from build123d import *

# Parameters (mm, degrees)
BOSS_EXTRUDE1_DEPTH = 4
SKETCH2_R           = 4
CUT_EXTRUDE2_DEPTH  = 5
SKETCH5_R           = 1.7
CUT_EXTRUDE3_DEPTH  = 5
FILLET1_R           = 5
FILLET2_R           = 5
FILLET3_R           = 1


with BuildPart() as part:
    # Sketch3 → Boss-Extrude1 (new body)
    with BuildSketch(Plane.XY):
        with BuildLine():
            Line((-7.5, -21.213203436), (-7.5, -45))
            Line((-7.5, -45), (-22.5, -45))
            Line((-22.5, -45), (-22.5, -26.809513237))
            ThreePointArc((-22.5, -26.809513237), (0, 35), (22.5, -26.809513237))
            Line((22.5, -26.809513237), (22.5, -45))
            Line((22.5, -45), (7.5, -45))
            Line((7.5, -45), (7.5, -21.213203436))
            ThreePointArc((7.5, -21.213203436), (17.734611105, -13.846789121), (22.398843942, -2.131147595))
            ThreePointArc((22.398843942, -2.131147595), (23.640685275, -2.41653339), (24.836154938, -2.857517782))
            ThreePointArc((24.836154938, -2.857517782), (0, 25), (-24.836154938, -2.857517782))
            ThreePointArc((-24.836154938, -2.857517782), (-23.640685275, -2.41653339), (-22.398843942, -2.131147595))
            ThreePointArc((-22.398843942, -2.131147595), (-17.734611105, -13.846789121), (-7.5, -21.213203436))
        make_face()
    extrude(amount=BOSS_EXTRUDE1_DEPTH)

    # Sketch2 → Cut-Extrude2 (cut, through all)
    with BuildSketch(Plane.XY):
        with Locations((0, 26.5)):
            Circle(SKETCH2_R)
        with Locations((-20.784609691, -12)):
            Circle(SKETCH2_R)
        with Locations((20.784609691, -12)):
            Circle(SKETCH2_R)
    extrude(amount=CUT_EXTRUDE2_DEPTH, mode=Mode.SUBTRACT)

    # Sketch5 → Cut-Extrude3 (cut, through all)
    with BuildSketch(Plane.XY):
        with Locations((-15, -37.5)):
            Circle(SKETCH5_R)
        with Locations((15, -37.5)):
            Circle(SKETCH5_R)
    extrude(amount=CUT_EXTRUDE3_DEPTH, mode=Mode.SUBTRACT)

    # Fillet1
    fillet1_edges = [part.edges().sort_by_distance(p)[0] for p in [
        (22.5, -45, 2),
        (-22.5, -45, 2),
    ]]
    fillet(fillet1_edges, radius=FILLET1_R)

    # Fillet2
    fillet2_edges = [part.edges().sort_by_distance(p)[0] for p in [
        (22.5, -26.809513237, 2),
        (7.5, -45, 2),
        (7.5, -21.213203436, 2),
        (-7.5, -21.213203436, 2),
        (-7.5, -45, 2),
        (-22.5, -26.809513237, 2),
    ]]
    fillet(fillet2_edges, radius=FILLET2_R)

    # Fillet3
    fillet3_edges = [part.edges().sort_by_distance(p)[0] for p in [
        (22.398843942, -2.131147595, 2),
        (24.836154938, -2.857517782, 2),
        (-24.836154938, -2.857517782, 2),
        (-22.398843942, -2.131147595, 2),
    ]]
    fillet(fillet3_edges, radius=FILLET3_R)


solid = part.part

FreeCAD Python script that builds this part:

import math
import FreeCAD as App
import Part
import Sketcher
from FreeCAD import Vector


def edges_at(feature, points):
    """Names of the edges that pass closest to the given points."""
    edges = feature.Shape.Edges
    near = lambda p: min(range(len(edges)), key=lambda i: edges[i].distToShape(Part.Vertex(*p))[0])
    return sorted({f"Edge{near(p) + 1}" for p in points})

doc = App.newDocument("Part")
params = doc.addObject("Spreadsheet::Sheet", "Params")
for row, (alias, value) in enumerate([
    ("sketch1_radius", "10 mm"),
    ("sketch1_radius2", "25 mm"),
    ("sketch1_radius3", "35 mm"),
    ("sketch1_radius4", "22.5 mm"),
    ("sketch1_width", "15 mm"),
    ("pad1_length", "4 mm"),
    ("sketch2_diameter", "8 mm"),
    ("sketch3_diameter", "3.4 mm"),
    ("fillet_radius", "5 mm"),
    ("fillet2_radius", "5 mm"),
    ("fillet3_radius", "1 mm"),
], start=1):
    params.set(f"A{row}", alias)
    params.set(f"B{row}", "=" + value)
    params.setAlias(f"B{row}", alias)

body = doc.addObject("PartDesign::Body", "Body")

# Sketch on XY plane
sketch1 = body.newObject("Sketcher::SketchObject", "Sketch")
sketch1.AttachmentSupport = (doc.getObject("XY_Plane"), [""])
sketch1.MapMode = "FlatFace"
sketch1.addGeometry(Part.LineSegment(Vector(-7.5, -45, 0), Vector(-7.5, -21.2, 0)), False)
sketch1.addGeometry(Part.ArcOfCircle(Part.Circle(Vector(0, 0, 0), Vector(0, 0, 1), 22.5), math.radians(-175), math.radians(-109)), False)
sketch1.addGeometry(Part.ArcOfCircle(Part.Circle(Vector(-20.8, -12, 0), Vector(0, 0, 1), 10), math.radians(99.29), math.radians(113.9)), False)
sketch1.addGeometry(Part.ArcOfCircle(Part.Circle(Vector(0, 0, 0), Vector(0, 0, 1), 25), math.radians(-7), math.radians(187)), False)
sketch1.addGeometry(Part.ArcOfCircle(Part.Circle(Vector(20.8, -12, 0), Vector(0, 0, 1), 10), math.radians(66.1), math.radians(80.71)), False)
sketch1.addGeometry(Part.ArcOfCircle(Part.Circle(Vector(0, 0, 0), Vector(0, 0, 1), 22.5), math.radians(-71), math.radians(-5)), False)
sketch1.addGeometry(Part.LineSegment(Vector(7.5, -21.2, 0), Vector(7.5, -45, 0)), False)
sketch1.addGeometry(Part.LineSegment(Vector(7.5, -45, 0), Vector(22.5, -45, 0)), False)
sketch1.addGeometry(Part.LineSegment(Vector(22.5, -45, 0), Vector(22.5, -26.8, 0)), False)
sketch1.addGeometry(Part.ArcOfCircle(Part.Circle(Vector(0, 0, 0), Vector(0, 0, 1), 35), math.radians(-50), math.radians(230)), False)
sketch1.addGeometry(Part.LineSegment(Vector(-22.5, -26.8, 0), Vector(-22.5, -45, 0)), False)
sketch1.addGeometry(Part.LineSegment(Vector(-22.5, -45, 0), Vector(-7.5, -45, 0)), False)
sketch1.addConstraint(Sketcher.Constraint("Coincident", 0, 2, 1, 2))
sketch1.addConstraint(Sketcher.Constraint("Coincident", 1, 1, 2, 1))
sketch1.addConstraint(Sketcher.Constraint("Coincident", 2, 2, 3, 2))
sketch1.addConstraint(Sketcher.Constraint("Coincident", 3, 1, 4, 1))
sketch1.addConstraint(Sketcher.Constraint("Coincident", 4, 2, 5, 2))
sketch1.addConstraint(Sketcher.Constraint("Coincident", 5, 1, 6, 1))
sketch1.addConstraint(Sketcher.Constraint("Coincident", 6, 2, 7, 1))
sketch1.addConstraint(Sketcher.Constraint("Coincident", 7, 2, 8, 1))
sketch1.addConstraint(Sketcher.Constraint("Coincident", 8, 2, 9, 1))
sketch1.addConstraint(Sketcher.Constraint("Coincident", 9, 2, 10, 1))
sketch1.addConstraint(Sketcher.Constraint("Coincident", 10, 2, 11, 1))
sketch1.addConstraint(Sketcher.Constraint("Coincident", 11, 2, 0, 1))
sketch1.addConstraint(Sketcher.Constraint("Vertical", 0))
sketch1.addConstraint(Sketcher.Constraint("Vertical", 6))
sketch1.addConstraint(Sketcher.Constraint("Horizontal", 7))
sketch1.addConstraint(Sketcher.Constraint("Vertical", 8))
sketch1.addConstraint(Sketcher.Constraint("Vertical", 10))
sketch1.addConstraint(Sketcher.Constraint("Horizontal", 11))
sketch1.addConstraint(Sketcher.Constraint("Coincident", 1, 3, -1, 1))
sketch1.addConstraint(Sketcher.Constraint("Coincident", 3, 3, -1, 1))
sketch1.addConstraint(Sketcher.Constraint("Coincident", 5, 3, -1, 1))
sketch1.addConstraint(Sketcher.Constraint("Coincident", 9, 3, -1, 1))
sketch1.addConstraint(Sketcher.Constraint("Equal", 2, 4))
sketch1.addConstraint(Sketcher.Constraint("Equal", 1, 5))
sketch1.addConstraint(Sketcher.Constraint("Symmetric", 2, 3, 4, 3, -2))
sketch1.addConstraint(Sketcher.Constraint("Symmetric", 7, 2, 10, 2, -2))
sketch1.addConstraint(Sketcher.Constraint("Horizontal", 0, 2, 5, 1))
sketch1.addConstraint(Sketcher.Constraint("Radius", 2, 10.0))
sketch1.addConstraint(Sketcher.Constraint("Radius", 3, 25.0))
sketch1.addConstraint(Sketcher.Constraint("Radius", 9, 35.0))
sketch1.addConstraint(Sketcher.Constraint("Radius", 1, 22.5))
sketch1.addConstraint(Sketcher.Constraint("DistanceX", 7, 1, 7, 2, 15.0))
sketch1.addConstraint(Sketcher.Constraint("DistanceY", 2, 3, -1, 1, 12.0))
sketch1.addConstraint(Sketcher.Constraint("DistanceY", 6, 2, -1, 1, 45.0))
sketch1.addConstraint(Sketcher.Constraint("DistanceX", 0, 2, 5, 1, 15.0))
sketch1.addConstraint(Sketcher.Constraint("DistanceX", 2, 3, -1, 1, 20.78461))
sketch1.setExpression("Constraints[27]", "Params.sketch1_radius")
sketch1.setExpression("Constraints[28]", "Params.sketch1_radius2")
sketch1.setExpression("Constraints[29]", "Params.sketch1_radius3")
sketch1.setExpression("Constraints[30]", "Params.sketch1_radius4")
sketch1.setExpression("Constraints[31]", "Params.sketch1_width")
pad1 = body.newObject("PartDesign::Pad", "Pad")
pad1.Profile = sketch1
pad1.setExpression("Length", "Params.pad1_length")

# Sketch on XY plane
sketch2 = body.newObject("Sketcher::SketchObject", "Sketch001")
sketch2.AttachmentSupport = (doc.getObject("XY_Plane"), [""])
sketch2.MapMode = "FlatFace"
sketch2.addGeometry(Part.Circle(Vector(0, 26.5, 0), Vector(0, 0, 1), 4), False)
sketch2.addGeometry(Part.Circle(Vector(-20.8, -12, 0), Vector(0, 0, 1), 4), False)
sketch2.addGeometry(Part.Circle(Vector(20.8, -12, 0), Vector(0, 0, 1), 4), False)
sketch2.addConstraint(Sketcher.Constraint("Equal", 0, 1))
sketch2.addConstraint(Sketcher.Constraint("Equal", 1, 2))
sketch2.addConstraint(Sketcher.Constraint("Symmetric", 1, 3, 2, 3, -2))
sketch2.addConstraint(Sketcher.Constraint("PointOnObject", 0, 3, -2))
sketch2.addConstraint(Sketcher.Constraint("Diameter", 0, 8.0))
sketch2.addConstraint(Sketcher.Constraint("DistanceY", 1, 3, -1, 1, 12.0))
sketch2.addConstraint(Sketcher.Constraint("DistanceY", -1, 1, 0, 3, 26.5))
sketch2.addConstraint(Sketcher.Constraint("DistanceX", 1, 3, -1, 1, 20.78461))
sketch2.setExpression("Constraints[4]", "Params.sketch2_diameter")
pocket1 = body.newObject("PartDesign::Pocket", "Pocket")
pocket1.Profile = sketch2
pocket1.Type = "ThroughAll"
pocket1.Reversed = True

# Sketch on XY plane
sketch3 = body.newObject("Sketcher::SketchObject", "Sketch002")
sketch3.AttachmentSupport = (doc.getObject("XY_Plane"), [""])
sketch3.MapMode = "FlatFace"
sketch3.addGeometry(Part.Circle(Vector(-15, -37.5, 0), Vector(0, 0, 1), 1.7), False)
sketch3.addGeometry(Part.Circle(Vector(15, -37.5, 0), Vector(0, 0, 1), 1.7), False)
sketch3.addConstraint(Sketcher.Constraint("Equal", 0, 1))
sketch3.addConstraint(Sketcher.Constraint("Symmetric", 0, 3, 1, 3, -2))
sketch3.addConstraint(Sketcher.Constraint("Diameter", 0, 3.4))
sketch3.addConstraint(Sketcher.Constraint("DistanceX", 0, 3, -1, 1, 15.0))
sketch3.addConstraint(Sketcher.Constraint("DistanceY", 0, 3, -1, 1, 37.5))
sketch3.setExpression("Constraints[2]", "Params.sketch3_diameter")
pocket2 = body.newObject("PartDesign::Pocket", "Pocket001")
pocket2.Profile = sketch3
pocket2.Type = "ThroughAll"
pocket2.Reversed = True
doc.recompute()

fillet = body.newObject("PartDesign::Fillet", "Fillet")
fillet.Base = (pocket2, edges_at(pocket2, [(22.5, -45, 2), (-22.5, -45, 2)]))
fillet.setExpression("Radius", "Params.fillet_radius")
doc.recompute()

fillet2 = body.newObject("PartDesign::Fillet", "Fillet001")
fillet2.Base = (fillet, edges_at(fillet, [
    (22.5, -26.81, 2),
    (7.5, -45, 2),
    (7.5, -21.213, 2),
    (-7.5, -21.213, 2),
    (-7.5, -45, 2),
    (-22.5, -26.81, 2),
]))
fillet2.setExpression("Radius", "Params.fillet2_radius")
doc.recompute()

fillet3 = body.newObject("PartDesign::Fillet", "Fillet002")
fillet3.Base = (fillet2, edges_at(fillet2, [
    (22.399, -2.131, 2),
    (24.836, -2.858, 2),
    (-24.836, -2.858, 2),
    (-22.399, -2.131, 2),
]))
fillet3.setExpression("Radius", "Params.fillet3_radius")

doc.recompute()
